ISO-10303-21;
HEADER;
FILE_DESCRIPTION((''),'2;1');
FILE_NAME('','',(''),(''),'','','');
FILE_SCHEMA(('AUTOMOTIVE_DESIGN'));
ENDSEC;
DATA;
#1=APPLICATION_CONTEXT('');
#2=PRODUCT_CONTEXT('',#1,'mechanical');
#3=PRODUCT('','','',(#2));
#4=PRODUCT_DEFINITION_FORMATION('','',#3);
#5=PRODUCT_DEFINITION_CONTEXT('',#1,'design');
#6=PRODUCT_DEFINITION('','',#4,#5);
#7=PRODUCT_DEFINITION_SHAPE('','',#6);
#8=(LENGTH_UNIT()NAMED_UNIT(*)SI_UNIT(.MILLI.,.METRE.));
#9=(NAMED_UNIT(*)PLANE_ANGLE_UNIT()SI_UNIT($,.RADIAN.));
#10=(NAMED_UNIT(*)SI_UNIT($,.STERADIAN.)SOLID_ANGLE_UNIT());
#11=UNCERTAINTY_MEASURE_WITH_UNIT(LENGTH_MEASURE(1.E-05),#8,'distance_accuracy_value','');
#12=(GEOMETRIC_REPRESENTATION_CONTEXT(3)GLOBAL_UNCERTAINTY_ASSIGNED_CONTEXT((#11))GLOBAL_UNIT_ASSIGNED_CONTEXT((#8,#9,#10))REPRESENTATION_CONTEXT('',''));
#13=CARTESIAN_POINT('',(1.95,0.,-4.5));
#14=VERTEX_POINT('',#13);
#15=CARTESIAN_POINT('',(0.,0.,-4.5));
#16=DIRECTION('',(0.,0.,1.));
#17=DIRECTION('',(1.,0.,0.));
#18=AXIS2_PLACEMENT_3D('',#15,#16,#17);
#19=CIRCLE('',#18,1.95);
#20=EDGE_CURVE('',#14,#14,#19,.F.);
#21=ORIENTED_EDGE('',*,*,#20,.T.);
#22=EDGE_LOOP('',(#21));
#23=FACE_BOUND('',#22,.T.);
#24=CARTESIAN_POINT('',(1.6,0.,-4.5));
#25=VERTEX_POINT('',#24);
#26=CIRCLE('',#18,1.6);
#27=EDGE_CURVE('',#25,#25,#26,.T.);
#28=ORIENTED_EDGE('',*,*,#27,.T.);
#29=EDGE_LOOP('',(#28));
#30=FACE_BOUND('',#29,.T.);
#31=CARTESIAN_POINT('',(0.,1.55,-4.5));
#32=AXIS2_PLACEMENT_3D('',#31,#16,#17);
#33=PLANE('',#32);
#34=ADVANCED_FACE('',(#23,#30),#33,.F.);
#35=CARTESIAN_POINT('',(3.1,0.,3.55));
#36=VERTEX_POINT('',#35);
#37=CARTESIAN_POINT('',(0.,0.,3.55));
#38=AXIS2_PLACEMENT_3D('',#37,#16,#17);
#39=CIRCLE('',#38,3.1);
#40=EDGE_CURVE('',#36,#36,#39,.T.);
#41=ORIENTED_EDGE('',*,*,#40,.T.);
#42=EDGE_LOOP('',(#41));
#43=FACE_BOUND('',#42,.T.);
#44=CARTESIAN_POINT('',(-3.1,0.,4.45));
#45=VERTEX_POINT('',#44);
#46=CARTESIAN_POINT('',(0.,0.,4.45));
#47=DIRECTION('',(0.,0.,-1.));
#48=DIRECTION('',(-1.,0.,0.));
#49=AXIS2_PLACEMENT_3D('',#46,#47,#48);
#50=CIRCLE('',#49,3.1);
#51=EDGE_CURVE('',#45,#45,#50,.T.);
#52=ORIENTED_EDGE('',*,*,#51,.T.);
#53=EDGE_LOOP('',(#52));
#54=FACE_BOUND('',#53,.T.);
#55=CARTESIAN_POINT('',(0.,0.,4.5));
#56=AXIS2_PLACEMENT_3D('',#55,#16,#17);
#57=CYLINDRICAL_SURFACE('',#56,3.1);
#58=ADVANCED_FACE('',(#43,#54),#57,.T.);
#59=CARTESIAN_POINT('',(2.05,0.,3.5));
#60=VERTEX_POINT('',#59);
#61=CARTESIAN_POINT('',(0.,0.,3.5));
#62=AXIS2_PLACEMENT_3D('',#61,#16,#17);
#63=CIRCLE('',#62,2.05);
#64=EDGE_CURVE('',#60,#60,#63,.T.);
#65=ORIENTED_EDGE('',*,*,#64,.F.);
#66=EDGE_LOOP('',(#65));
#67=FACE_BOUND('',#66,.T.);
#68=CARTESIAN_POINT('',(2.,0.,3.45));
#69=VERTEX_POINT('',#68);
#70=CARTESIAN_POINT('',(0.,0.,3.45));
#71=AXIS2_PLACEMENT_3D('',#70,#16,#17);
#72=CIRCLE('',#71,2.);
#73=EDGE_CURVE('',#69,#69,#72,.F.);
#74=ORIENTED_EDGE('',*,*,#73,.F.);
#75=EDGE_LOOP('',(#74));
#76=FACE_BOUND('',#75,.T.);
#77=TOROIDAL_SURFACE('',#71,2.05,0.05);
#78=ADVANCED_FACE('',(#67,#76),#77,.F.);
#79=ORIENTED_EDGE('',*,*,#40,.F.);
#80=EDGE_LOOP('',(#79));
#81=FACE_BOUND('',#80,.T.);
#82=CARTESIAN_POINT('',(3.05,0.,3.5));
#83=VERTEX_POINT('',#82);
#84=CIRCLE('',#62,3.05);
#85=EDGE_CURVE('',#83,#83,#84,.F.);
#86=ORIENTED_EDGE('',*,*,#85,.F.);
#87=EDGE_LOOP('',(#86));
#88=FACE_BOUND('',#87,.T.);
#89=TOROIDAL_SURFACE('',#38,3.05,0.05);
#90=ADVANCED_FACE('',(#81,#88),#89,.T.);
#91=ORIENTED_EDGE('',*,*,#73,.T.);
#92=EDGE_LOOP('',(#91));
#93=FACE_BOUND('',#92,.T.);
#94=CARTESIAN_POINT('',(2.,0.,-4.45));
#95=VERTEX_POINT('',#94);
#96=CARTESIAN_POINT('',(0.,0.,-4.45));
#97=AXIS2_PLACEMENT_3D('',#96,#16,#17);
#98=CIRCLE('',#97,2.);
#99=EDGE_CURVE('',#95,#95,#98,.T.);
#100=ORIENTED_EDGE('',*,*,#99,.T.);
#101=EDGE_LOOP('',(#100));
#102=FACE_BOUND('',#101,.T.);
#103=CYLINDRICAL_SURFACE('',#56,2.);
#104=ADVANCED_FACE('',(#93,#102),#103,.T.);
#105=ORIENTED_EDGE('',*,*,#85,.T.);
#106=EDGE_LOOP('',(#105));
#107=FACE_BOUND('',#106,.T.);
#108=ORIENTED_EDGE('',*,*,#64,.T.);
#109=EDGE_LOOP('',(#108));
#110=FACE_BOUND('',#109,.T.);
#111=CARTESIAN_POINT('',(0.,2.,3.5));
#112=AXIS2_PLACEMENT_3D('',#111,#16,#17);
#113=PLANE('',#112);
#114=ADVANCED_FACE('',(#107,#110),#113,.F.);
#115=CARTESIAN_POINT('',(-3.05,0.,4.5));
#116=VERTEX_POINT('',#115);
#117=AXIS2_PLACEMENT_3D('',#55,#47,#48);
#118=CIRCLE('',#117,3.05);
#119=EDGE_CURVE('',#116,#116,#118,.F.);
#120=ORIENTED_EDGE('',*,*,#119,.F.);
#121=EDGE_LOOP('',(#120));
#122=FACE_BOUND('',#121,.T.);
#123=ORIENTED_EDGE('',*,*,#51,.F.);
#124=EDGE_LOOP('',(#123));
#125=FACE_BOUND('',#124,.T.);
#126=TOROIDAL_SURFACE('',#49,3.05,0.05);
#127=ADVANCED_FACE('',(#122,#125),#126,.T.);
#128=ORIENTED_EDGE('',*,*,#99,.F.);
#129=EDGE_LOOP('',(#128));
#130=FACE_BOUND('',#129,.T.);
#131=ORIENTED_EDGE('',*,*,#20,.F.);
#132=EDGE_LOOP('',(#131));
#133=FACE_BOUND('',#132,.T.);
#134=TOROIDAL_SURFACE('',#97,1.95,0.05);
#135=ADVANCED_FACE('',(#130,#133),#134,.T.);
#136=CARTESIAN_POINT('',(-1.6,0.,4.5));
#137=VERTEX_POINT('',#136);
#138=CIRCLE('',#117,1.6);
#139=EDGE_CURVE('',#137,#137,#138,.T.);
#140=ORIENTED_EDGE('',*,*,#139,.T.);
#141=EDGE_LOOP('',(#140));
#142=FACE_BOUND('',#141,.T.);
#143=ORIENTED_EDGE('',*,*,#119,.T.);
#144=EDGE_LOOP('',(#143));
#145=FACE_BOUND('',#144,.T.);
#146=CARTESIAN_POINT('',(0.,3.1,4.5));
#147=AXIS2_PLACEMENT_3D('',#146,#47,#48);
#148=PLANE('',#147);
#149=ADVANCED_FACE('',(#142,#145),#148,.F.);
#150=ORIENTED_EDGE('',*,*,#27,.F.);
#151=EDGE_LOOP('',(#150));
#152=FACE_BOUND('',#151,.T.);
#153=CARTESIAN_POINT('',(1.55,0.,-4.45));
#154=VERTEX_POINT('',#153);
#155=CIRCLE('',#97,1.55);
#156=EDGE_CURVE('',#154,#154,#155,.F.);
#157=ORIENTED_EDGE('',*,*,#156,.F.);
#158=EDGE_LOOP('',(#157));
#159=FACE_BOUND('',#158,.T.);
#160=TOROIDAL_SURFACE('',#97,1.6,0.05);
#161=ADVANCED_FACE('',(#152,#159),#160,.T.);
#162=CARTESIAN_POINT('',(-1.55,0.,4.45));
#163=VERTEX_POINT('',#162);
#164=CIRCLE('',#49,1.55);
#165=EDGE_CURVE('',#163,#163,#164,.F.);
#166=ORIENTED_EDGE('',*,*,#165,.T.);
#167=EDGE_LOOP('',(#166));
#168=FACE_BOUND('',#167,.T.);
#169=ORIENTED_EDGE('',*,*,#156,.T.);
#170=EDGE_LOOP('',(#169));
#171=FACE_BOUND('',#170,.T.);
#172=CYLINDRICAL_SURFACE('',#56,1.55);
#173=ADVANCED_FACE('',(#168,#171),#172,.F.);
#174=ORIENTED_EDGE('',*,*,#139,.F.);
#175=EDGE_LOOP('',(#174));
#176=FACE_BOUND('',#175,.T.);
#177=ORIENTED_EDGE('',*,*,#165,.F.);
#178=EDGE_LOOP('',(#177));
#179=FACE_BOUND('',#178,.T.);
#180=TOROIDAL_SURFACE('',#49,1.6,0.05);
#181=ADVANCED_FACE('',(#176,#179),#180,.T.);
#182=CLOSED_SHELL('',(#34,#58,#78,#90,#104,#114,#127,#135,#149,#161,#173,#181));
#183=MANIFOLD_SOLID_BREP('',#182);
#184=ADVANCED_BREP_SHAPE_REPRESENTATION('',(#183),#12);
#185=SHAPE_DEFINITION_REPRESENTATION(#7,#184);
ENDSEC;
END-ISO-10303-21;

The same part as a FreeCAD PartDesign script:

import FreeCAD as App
import Part
import Sketcher
Q = App.Units.Quantity


def edges_at(feature, points):
    """Names of the edges that pass closest to the given points."""
    edges = feature.Shape.Edges
    near = lambda p: min(range(len(edges)), key=lambda i: edges[i].distToShape(Part.Vertex(*p))[0])
    return sorted({f"Edge{near(p) + 1}" for p in points})


def add_polygon(sketch, points):
    """Adds a closed chain of lines whose ends are joined by coincident constraints."""
    first, n = sketch.GeometryCount, len(points)
    for a, b in zip(points, points[1:] + points[:1]):
        sketch.addGeometry(Part.LineSegment(App.Vector(*a, 0), App.Vector(*b, 0)), False)
    for i in range(n):
        sketch.addConstraint(Sketcher.Constraint("Coincident", first + i, 2, first + (i + 1) % n, 1))

doc = App.newDocument("Part")
body = doc.addObject("PartDesign::Body", "Body")

sketch1 = body.newObject("Sketcher::SketchObject", "Sketch")
sketch1.AttachmentSupport = (doc.getObject("YZ_Plane"), [""])
sketch1.MapMode = "FlatFace"
add_polygon(sketch1, [(1.55, 4.5), (1.55, -4.5), (2, -4.5), (2, 3.5), (3.1, 3.5), (3.1, 4.5)])
sketch1.addConstraint(Sketcher.Constraint("Vertical", 0))
sketch1.addConstraint(Sketcher.Constraint("Horizontal", 1))
sketch1.addConstraint(Sketcher.Constraint("Vertical", 2))
sketch1.addConstraint(Sketcher.Constraint("Horizontal", 3))
sketch1.addConstraint(Sketcher.Constraint("Vertical", 4))
sketch1.addConstraint(Sketcher.Constraint("Horizontal", 5))
sketch1.addConstraint(Sketcher.Constraint("DistanceY", 0, 2, 0, 1, Q("9 mm")))
sketch1.addConstraint(Sketcher.Constraint("DistanceY", 2, 1, 2, 2, Q("8 mm")))
sketch1.addConstraint(Sketcher.Constraint("DistanceX", 3, 1, 3, 2, Q("1.1 mm")))
sketch1.addConstraint(Sketcher.Constraint("DistanceX", -1, 1, 1, 2, Q("2 mm")))
sketch1.addConstraint(Sketcher.Constraint("DistanceX", 1, 1, 1, 2, Q("0.45 mm")))
sketch1.addConstraint(Sketcher.Constraint("DistanceY", 0, 2, -1, 1, Q("4.5 mm")))
revolution = body.newObject("PartDesign::Revolution", "Revolution")
revolution.Profile = sketch1
revolution.ReferenceAxis = (sketch1, ["V_Axis"])
revolution.Angle = 360
doc.recompute()

fillet = body.newObject("PartDesign::Fillet", "Fillet")
fillet.Base = (revolution, edges_at(revolution, [
    (0, -3.1, 4.5),
    (0, -3.1, 3.5),
    (0, -2, 3.5),
    (0, -2, -4.5),
    (0, -1.55, -4.5),
    (0, -1.55, 4.5),
]))
fillet.Radius = 0.05

doc.recompute()
